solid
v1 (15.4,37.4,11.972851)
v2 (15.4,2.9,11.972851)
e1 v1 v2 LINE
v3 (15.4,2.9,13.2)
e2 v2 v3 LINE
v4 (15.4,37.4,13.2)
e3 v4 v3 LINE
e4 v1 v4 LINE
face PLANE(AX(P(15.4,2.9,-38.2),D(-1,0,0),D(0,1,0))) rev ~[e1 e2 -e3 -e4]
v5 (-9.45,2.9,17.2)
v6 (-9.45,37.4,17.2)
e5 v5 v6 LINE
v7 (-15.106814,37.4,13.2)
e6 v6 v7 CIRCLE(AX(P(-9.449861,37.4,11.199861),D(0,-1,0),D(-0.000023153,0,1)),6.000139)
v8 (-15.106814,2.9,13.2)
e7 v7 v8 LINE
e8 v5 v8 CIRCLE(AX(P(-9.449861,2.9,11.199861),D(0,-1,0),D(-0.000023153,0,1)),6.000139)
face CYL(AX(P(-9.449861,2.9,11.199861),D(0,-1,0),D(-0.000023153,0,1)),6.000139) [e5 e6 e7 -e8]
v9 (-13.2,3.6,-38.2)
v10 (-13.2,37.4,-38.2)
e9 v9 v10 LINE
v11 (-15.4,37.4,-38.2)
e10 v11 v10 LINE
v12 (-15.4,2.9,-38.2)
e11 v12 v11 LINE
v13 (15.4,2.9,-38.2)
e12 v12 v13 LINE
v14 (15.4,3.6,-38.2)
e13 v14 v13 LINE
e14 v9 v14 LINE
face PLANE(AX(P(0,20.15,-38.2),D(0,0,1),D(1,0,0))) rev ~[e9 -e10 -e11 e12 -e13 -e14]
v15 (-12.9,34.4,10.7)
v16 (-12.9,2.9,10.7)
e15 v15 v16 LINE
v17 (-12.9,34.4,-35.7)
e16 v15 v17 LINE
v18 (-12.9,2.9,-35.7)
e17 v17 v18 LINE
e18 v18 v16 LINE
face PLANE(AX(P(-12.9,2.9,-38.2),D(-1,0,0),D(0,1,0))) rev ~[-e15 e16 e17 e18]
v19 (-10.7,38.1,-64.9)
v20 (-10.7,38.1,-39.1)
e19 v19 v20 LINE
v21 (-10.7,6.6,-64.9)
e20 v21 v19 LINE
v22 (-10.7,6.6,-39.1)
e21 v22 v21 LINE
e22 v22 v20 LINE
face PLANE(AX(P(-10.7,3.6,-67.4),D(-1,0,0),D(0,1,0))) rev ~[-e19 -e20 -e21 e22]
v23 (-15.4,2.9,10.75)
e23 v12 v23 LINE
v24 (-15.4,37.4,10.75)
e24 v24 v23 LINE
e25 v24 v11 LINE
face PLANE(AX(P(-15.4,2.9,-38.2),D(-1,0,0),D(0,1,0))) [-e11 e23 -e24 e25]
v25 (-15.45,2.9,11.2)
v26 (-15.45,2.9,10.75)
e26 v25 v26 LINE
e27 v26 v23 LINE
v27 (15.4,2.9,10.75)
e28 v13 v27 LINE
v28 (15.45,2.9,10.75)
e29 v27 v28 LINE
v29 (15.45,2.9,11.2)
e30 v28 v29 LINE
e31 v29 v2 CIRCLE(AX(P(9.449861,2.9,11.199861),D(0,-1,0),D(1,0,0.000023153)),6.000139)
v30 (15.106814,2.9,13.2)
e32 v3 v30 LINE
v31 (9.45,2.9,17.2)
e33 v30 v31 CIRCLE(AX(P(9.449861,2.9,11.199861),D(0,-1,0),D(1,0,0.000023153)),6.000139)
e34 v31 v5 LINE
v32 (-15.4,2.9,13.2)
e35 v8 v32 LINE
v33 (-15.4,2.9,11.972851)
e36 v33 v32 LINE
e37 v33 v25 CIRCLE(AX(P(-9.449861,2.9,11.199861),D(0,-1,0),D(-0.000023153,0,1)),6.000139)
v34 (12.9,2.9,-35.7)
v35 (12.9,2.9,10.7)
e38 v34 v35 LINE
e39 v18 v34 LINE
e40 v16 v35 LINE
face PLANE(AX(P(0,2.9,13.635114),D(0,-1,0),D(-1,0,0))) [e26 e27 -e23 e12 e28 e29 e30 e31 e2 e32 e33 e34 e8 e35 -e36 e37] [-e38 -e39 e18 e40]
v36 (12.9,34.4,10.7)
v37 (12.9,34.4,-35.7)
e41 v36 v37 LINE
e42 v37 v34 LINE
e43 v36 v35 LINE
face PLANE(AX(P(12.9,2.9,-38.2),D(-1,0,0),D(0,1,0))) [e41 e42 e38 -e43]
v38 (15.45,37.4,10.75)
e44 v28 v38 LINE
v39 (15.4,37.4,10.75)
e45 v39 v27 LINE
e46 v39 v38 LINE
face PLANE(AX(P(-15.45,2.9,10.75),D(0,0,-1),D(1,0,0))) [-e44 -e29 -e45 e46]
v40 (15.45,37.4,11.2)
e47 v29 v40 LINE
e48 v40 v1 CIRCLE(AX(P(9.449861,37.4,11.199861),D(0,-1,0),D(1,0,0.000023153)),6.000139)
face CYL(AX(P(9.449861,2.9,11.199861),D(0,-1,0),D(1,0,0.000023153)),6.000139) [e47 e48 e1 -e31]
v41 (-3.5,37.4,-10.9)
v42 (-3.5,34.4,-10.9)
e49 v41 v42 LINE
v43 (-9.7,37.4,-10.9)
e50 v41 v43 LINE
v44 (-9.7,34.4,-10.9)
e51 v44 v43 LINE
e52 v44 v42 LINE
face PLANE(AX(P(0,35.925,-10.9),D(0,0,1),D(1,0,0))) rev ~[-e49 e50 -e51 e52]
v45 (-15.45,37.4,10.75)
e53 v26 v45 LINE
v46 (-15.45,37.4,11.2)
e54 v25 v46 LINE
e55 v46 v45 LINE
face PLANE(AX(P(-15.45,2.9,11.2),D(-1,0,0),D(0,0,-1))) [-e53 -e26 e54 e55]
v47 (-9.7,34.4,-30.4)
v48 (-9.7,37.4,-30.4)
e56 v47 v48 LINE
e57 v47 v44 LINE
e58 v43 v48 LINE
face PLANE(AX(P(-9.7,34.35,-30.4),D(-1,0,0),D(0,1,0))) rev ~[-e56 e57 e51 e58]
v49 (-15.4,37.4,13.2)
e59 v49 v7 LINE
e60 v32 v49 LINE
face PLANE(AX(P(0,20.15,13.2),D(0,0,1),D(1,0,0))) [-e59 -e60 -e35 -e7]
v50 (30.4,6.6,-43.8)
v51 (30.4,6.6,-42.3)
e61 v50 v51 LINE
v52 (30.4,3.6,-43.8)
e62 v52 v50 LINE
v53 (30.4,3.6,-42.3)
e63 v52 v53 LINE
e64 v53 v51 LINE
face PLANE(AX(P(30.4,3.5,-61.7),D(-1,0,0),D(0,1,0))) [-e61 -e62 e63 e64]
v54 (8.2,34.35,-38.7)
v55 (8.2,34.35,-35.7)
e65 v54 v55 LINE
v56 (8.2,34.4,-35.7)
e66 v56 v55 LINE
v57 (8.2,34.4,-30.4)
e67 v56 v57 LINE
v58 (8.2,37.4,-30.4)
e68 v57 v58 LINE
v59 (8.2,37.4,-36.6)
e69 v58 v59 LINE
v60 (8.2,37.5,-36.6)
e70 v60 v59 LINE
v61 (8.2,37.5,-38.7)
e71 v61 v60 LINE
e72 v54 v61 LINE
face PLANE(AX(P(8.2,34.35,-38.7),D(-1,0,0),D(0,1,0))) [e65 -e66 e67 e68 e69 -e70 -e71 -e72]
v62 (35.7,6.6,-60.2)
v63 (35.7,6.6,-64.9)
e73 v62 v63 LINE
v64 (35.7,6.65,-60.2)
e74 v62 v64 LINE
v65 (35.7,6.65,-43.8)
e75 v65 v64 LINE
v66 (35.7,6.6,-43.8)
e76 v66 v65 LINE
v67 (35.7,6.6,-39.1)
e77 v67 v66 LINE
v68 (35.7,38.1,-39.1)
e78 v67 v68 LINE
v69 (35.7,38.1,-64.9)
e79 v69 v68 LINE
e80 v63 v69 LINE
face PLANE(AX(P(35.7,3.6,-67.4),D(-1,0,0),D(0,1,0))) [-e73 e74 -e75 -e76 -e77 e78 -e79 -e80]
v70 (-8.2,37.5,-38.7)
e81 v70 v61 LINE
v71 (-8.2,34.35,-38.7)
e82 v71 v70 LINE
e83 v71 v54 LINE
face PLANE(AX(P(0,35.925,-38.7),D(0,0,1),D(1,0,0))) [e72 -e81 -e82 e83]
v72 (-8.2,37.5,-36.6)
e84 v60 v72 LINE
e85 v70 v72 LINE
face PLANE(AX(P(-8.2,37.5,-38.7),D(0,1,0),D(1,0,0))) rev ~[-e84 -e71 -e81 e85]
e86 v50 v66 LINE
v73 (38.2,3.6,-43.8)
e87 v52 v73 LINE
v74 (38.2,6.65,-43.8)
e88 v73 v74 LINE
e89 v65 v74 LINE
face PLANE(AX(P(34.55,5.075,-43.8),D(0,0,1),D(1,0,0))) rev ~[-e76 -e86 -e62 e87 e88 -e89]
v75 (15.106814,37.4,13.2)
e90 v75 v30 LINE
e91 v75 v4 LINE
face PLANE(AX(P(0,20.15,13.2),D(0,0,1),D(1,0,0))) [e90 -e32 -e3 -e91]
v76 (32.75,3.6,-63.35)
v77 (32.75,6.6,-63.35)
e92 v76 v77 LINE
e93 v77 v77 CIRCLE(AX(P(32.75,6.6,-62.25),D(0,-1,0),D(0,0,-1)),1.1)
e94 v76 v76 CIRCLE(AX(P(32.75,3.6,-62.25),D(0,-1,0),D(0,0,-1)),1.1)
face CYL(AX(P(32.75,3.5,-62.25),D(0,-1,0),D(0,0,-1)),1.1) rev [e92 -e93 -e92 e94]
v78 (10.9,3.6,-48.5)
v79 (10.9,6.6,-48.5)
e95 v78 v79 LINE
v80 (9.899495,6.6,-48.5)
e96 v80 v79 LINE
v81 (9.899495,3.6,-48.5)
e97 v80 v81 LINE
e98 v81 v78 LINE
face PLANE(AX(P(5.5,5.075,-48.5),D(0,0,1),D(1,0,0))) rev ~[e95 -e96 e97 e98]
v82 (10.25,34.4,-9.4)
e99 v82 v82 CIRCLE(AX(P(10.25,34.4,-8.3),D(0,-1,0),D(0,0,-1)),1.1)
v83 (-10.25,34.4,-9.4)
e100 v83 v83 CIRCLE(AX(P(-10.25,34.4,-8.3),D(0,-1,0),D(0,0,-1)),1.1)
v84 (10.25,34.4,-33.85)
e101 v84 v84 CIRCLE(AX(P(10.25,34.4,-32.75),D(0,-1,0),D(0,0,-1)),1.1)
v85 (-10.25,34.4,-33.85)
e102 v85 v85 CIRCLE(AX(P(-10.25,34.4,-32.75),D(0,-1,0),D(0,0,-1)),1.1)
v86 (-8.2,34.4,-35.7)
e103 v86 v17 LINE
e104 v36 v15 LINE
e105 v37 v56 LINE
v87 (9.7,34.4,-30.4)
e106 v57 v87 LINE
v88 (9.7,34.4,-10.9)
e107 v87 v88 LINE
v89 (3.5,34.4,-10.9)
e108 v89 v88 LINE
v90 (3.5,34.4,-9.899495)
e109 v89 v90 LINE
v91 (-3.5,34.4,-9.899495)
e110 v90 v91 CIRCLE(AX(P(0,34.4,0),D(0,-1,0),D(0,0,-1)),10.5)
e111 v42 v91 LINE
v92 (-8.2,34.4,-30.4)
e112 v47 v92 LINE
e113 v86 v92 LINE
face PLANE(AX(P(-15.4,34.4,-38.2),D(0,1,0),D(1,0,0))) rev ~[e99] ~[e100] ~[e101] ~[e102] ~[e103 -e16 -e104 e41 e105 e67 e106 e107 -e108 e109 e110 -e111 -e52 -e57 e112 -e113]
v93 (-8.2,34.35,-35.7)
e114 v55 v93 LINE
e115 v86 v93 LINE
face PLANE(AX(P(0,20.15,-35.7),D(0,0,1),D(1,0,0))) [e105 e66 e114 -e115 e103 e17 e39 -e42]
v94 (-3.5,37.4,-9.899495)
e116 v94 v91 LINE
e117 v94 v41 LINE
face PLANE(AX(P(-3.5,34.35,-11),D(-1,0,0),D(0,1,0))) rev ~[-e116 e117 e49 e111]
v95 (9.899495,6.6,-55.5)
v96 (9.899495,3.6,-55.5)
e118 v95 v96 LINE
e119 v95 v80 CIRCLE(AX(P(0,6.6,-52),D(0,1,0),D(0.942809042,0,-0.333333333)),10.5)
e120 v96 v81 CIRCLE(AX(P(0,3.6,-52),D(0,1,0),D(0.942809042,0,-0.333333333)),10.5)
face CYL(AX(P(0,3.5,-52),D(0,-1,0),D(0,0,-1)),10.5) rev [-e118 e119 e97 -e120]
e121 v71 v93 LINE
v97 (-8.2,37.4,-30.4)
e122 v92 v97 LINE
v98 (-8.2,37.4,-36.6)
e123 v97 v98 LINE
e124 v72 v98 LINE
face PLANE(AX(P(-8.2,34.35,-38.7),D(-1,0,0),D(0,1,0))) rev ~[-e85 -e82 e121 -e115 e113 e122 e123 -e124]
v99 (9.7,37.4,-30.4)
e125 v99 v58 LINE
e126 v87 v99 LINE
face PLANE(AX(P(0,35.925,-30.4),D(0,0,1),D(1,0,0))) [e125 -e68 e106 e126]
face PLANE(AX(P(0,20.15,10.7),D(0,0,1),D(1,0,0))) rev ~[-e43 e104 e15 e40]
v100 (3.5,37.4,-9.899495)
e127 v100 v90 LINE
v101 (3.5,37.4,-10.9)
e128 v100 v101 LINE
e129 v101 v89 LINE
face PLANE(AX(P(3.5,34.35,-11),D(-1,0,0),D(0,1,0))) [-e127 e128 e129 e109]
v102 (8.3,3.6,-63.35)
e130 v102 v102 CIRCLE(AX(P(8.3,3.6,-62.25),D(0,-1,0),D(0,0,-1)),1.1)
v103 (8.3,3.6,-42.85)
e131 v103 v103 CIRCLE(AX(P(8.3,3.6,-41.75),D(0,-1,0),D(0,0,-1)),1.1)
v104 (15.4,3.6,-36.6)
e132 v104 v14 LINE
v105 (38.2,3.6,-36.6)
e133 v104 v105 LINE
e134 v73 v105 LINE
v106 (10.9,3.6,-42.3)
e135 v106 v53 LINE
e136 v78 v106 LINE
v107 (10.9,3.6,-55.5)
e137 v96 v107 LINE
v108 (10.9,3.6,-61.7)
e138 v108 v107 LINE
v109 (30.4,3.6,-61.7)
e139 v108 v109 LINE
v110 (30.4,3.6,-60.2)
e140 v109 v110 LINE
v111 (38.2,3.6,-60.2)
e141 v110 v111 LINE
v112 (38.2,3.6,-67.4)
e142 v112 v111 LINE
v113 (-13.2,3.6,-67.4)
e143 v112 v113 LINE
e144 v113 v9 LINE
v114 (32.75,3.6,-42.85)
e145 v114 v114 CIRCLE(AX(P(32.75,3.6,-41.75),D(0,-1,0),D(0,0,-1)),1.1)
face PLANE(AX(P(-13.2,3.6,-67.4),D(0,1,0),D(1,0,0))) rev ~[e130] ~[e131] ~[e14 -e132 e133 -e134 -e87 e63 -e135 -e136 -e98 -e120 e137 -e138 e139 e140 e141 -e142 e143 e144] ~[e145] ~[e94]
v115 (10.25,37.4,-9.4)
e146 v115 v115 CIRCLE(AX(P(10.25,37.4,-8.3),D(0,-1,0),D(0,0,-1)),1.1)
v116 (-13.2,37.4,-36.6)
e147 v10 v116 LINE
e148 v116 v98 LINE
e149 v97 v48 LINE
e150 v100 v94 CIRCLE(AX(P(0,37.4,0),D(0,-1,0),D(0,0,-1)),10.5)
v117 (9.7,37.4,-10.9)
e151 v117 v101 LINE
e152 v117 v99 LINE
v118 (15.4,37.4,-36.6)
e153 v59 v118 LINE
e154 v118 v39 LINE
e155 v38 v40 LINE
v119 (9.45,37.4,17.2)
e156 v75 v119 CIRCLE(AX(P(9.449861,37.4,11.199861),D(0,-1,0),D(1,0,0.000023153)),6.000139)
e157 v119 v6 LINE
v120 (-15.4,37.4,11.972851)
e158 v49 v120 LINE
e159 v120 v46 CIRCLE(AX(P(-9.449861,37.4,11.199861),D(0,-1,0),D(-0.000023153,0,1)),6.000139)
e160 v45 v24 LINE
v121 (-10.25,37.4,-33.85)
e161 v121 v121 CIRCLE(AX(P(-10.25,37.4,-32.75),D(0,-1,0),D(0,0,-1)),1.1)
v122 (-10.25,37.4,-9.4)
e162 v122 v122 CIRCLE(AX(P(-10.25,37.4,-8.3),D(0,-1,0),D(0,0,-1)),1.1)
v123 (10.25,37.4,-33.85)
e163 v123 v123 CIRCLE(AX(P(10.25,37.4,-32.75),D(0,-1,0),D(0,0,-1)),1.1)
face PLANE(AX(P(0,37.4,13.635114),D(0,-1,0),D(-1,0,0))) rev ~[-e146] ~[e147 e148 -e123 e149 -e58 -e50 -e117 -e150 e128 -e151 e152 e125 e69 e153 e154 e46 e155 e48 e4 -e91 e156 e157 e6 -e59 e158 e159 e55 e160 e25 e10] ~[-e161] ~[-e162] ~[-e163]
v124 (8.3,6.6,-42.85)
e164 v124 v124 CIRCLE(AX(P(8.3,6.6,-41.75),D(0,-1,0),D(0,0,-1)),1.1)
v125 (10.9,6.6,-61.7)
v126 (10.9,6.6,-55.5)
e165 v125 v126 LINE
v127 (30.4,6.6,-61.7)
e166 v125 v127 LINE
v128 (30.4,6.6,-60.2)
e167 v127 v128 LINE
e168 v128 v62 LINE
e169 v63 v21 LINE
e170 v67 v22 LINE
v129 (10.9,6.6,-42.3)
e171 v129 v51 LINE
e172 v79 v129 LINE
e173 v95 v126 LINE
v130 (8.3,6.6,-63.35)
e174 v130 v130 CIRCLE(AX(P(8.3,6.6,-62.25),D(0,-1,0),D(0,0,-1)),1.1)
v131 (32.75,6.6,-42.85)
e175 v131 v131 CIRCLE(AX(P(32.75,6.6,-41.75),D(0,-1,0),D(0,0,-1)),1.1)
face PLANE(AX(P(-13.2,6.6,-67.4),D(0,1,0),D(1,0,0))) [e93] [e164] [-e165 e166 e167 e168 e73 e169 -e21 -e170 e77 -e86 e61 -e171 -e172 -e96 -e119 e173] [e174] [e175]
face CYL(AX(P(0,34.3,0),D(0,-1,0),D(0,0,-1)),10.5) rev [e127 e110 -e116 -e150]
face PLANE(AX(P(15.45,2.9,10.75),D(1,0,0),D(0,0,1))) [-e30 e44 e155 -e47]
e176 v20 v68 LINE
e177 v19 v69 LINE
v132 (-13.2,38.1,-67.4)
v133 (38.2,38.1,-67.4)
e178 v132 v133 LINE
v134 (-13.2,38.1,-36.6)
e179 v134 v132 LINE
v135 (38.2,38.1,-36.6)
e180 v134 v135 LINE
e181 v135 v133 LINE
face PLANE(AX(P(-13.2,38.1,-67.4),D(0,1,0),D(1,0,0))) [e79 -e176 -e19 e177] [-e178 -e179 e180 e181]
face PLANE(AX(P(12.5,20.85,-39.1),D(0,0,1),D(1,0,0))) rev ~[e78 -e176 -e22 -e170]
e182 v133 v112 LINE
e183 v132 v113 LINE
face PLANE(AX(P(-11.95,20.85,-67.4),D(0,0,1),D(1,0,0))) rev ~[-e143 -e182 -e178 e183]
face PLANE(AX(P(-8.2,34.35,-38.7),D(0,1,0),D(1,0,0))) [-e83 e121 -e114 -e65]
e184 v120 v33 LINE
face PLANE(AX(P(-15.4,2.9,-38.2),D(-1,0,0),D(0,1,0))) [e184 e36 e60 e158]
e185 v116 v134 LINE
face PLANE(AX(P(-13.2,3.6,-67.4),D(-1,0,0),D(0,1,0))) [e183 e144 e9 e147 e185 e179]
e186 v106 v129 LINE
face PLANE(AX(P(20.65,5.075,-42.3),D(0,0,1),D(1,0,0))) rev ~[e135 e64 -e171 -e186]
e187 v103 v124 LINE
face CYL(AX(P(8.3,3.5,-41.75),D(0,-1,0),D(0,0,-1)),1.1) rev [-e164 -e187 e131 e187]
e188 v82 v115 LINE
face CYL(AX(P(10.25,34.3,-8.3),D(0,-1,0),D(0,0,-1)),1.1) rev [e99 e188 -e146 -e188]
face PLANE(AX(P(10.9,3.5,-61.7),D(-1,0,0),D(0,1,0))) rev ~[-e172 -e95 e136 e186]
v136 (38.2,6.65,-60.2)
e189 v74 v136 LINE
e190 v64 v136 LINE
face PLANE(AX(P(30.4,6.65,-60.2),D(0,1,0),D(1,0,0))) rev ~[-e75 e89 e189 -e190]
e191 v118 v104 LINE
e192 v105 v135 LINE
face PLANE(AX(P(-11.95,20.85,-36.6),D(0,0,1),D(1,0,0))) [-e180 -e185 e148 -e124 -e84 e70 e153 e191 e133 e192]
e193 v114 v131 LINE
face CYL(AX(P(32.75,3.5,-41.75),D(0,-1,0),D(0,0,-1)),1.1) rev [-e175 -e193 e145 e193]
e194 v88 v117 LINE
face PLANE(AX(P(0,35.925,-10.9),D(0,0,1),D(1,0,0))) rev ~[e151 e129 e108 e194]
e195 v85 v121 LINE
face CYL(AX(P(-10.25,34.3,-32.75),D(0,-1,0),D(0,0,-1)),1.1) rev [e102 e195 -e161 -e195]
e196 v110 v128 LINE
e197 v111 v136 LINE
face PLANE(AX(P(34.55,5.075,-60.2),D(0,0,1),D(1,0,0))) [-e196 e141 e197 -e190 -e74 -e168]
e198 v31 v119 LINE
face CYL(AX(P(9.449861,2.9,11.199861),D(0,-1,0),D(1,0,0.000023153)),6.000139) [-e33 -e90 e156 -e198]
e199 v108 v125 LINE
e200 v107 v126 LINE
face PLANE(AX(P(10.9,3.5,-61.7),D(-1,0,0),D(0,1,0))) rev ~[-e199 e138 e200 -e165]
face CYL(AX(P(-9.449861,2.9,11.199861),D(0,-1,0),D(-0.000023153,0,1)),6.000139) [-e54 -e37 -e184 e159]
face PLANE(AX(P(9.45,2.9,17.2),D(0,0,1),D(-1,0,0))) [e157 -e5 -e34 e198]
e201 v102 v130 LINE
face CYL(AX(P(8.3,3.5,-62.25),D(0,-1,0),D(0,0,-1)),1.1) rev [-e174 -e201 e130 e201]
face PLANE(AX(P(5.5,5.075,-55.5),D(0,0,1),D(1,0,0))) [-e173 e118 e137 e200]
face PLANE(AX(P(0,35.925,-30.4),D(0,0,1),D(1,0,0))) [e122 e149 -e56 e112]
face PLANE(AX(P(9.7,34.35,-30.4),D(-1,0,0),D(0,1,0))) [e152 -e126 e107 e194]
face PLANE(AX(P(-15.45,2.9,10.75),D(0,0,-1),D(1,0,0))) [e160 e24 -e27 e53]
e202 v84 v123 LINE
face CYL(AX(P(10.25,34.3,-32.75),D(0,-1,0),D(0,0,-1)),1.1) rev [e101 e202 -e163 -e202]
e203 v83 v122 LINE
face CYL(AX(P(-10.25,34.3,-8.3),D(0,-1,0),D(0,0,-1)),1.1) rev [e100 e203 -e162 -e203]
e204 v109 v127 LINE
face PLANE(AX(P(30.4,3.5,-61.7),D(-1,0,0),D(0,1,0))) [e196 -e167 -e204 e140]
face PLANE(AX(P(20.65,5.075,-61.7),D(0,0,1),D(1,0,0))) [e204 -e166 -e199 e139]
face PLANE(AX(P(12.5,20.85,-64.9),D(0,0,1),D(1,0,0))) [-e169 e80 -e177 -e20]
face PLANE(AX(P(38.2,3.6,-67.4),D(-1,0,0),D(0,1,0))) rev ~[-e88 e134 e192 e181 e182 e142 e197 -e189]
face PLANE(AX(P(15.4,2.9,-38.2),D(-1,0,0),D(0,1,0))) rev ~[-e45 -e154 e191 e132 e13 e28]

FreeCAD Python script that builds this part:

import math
import FreeCAD as App
import Part
import Sketcher
from FreeCAD import Vector
Q = App.Units.Quantity

doc = App.newDocument("Part")
body = doc.addObject("PartDesign::Body", "Body")

# Sketch on XY plane
sketch1 = doc.addObject("Sketcher::SketchObject", "Sketch")
body.addObject(sketch1)
sketch1.AttachmentSupport = (doc.XY_Plane, [""])
sketch1.MapMode = "FlatFace"
sketch1.AttachmentOffset = App.Placement(Vector(0, 0, -38.2), App.Rotation())
sketch1.addGeometry([
    Part.LineSegment(Vector(-15.4, 37.4, 0), Vector(-15.4, 2.9, 0)),
    Part.LineSegment(Vector(-15.4, 2.9, 0), Vector(15.4, 2.9, 0)),
    Part.LineSegment(Vector(15.4, 2.9, 0), Vector(15.4, 37.4, 0)),
    Part.LineSegment(Vector(15.4, 37.4, 0), Vector(-15.4, 37.4, 0)),
], False)
sketch1.addConstraint([
    Sketcher.Constraint("Coincident", 0, 2, 1, 1),
    Sketcher.Constraint("Coincident", 1, 2, 2, 1),
    Sketcher.Constraint("Coincident", 2, 2, 3, 1),
    Sketcher.Constraint("Coincident", 3, 2, 0, 1),
    Sketcher.Constraint("Vertical", 0),
    Sketcher.Constraint("Horizontal", 1),
    Sketcher.Constraint("Vertical", 2),
    Sketcher.Constraint("Horizontal", 3),
    Sketcher.Constraint("DistanceX", 1, 1, 1, 2, Q("30.8 mm")),
    Sketcher.Constraint("DistanceY", 0, 2, 0, 1, Q("34.5 mm")),
    Sketcher.Constraint("DistanceX", 0, 2, -1, 1, Q("15.4 mm")),
    Sketcher.Constraint("DistanceY", -1, 1, 0, 2, Q("2.9 mm")),
])
pad1 = doc.addObject("PartDesign::Pad", "Pad")
body.addObject(pad1)
pad1.Profile = sketch1
pad1.Length = 2.5
body2 = doc.addObject("PartDesign::Body", "Body001")

# Sketch on XY plane
sketch2 = doc.addObject("Sketcher::SketchObject", "Sketch001")
body2.addObject(sketch2)
sketch2.AttachmentSupport = (doc.getObject("XY_Plane001"), [""])
sketch2.MapMode = "FlatFace"
sketch2.AttachmentOffset = App.Placement(Vector(0, 0, 10.7), App.Rotation())
sketch2.addGeometry([
    Part.LineSegment(Vector(-15.4, 37.4, 0), Vector(-15.4, 2.9, 0)),
    Part.LineSegment(Vector(-15.4, 2.9, 0), Vector(15.4, 2.9, 0)),
    Part.LineSegment(Vector(15.4, 2.9, 0), Vector(15.4, 37.4, 0)),
    Part.LineSegment(Vector(15.4, 37.4, 0), Vector(-15.4, 37.4, 0)),
], False)
sketch2.addConstraint([
    Sketcher.Constraint("Coincident", 0, 2, 1, 1),
    Sketcher.Constraint("Coincident", 1, 2, 2, 1),
    Sketcher.Constraint("Coincident", 2, 2, 3, 1),
    Sketcher.Constraint("Coincident", 3, 2, 0, 1),
    Sketcher.Constraint("Vertical", 0),
    Sketcher.Constraint("Horizontal", 1),
    Sketcher.Constraint("Vertical", 2),
    Sketcher.Constraint("Horizontal", 3),
    Sketcher.Constraint("DistanceX", 1, 1, 1, 2, Q("30.8 mm")),
    Sketcher.Constraint("DistanceY", 0, 2, 0, 1, Q("34.5 mm")),
    Sketcher.Constraint("DistanceX", 0, 2, -1, 1, Q("15.4 mm")),
    Sketcher.Constraint("DistanceY", -1, 1, 0, 2, Q("2.9 mm")),
])
pad2 = doc.addObject("PartDesign::Pad", "Pad001")
body2.addObject(pad2)
pad2.Profile = sketch2
pad2.Length = 2.5
body.AllowCompound = True
doc.recompute()

boolean = doc.addObject("PartDesign::Boolean", "Boolean")
body.addObject(boolean)
boolean.Type = "Fuse"
boolean.addObjects([body2])

# Sketch on XY plane
sketch3 = doc.addObject("Sketcher::SketchObject", "Sketch002")
body.addObject(sketch3)
sketch3.AttachmentSupport = (doc.XY_Plane, [""])
sketch3.MapMode = "FlatFace"
sketch3.AttachmentOffset = App.Placement(Vector(0, 0, -38.2), App.Rotation())
sketch3.addGeometry([
    Part.LineSegment(Vector(-15.4, 37.4, 0), Vector(-15.4, 2.9, 0)),
    Part.LineSegment(Vector(-15.4, 2.9, 0), Vector(-12.9, 2.9, 0)),
    Part.LineSegment(Vector(-12.9, 2.9, 0), Vector(-12.9, 37.4, 0)),
    Part.LineSegment(Vector(-12.9, 37.4, 0), Vector(-15.4, 37.4, 0)),
], False)
sketch3.addConstraint([
    Sketcher.Constraint("Coincident", 0, 2, 1, 1),
    Sketcher.Constraint("Coincident", 1, 2, 2, 1),
    Sketcher.Constraint("Coincident", 2, 2, 3, 1),
    Sketcher.Constraint("Coincident", 3, 2, 0, 1),
    Sketcher.Constraint("Vertical", 0),
    Sketcher.Constraint("Horizontal", 1),
    Sketcher.Constraint("Vertical", 2),
    Sketcher.Constraint("Horizontal", 3),
    Sketcher.Constraint("DistanceX", 1, 1, 1, 2, Q("2.5 mm")),
    Sketcher.Constraint("DistanceY", 0, 2, 0, 1, Q("34.5 mm")),
    Sketcher.Constraint("DistanceX", 0, 2, -1, 1, Q("15.4 mm")),
    Sketcher.Constraint("DistanceY", -1, 1, 0, 2, Q("2.9 mm")),
])
pad3 = doc.addObject("PartDesign::Pad", "Pad002")
body.addObject(pad3)
pad3.Profile = sketch3
pad3.Length = 51.4

# Sketch on XY plane
sketch4 = doc.addObject("Sketcher::SketchObject", "Sketch003")
body.addObject(sketch4)
sketch4.AttachmentSupport = (doc.XY_Plane, [""])
sketch4.MapMode = "FlatFace"
sketch4.AttachmentOffset = App.Placement(Vector(0, 0, -38.2), App.Rotation())
sketch4.addGeometry([
    Part.LineSegment(Vector(12.9, 37.4, 0), Vector(12.9, 2.9, 0)),
    Part.LineSegment(Vector(12.9, 2.9, 0), Vector(15.4, 2.9, 0)),
    Part.LineSegment(Vector(15.4, 2.9, 0), Vector(15.4, 37.4, 0)),
    Part.LineSegment(Vector(15.4, 37.4, 0), Vector(12.9, 37.4, 0)),
], False)
sketch4.addConstraint([
    Sketcher.Constraint("Coincident", 0, 2, 1, 1),
    Sketcher.Constraint("Coincident", 1, 2, 2, 1),
    Sketcher.Constraint("Coincident", 2, 2, 3, 1),
    Sketcher.Constraint("Coincident", 3, 2, 0, 1),
    Sketcher.Constraint("Vertical", 0),
    Sketcher.Constraint("Horizontal", 1),
    Sketcher.Constraint("Vertical", 2),
    Sketcher.Constraint("Horizontal", 3),
    Sketcher.Constraint("DistanceX", 1, 1, 1, 2, Q("2.5 mm")),
    Sketcher.Constraint("DistanceY", 0, 2, 0, 1, Q("34.5 mm")),
    Sketcher.Constraint("DistanceX", -1, 1, 0, 2, Q("12.9 mm")),
    Sketcher.Constraint("DistanceY", -1, 1, 0, 2, Q("2.9 mm")),
])
pad4 = doc.addObject("PartDesign::Pad", "Pad003")
body.addObject(pad4)
pad4.Profile = sketch4
pad4.Length = 51.4

# Sketch on XY plane
sketch5 = doc.addObject("Sketcher::SketchObject", "Sketch004")
body.addObject(sketch5)
sketch5.AttachmentSupport = (doc.XY_Plane, [""])
sketch5.MapMode = "FlatFace"
sketch5.AttachmentOffset = App.Placement(Vector(0, 0, -38.2), App.Rotation())
sketch5.addGeometry([
    Part.LineSegment(Vector(-15.4, 37.4, 0), Vector(-15.4, 34.4, 0)),
    Part.LineSegment(Vector(-15.4, 34.4, 0), Vector(15.4, 34.4, 0)),
    Part.LineSegment(Vector(15.4, 34.4, 0), Vector(15.4, 37.4, 0)),
    Part.LineSegment(Vector(15.4, 37.4, 0), Vector(-15.4, 37.4, 0)),
], False)
sketch5.addConstraint([
    Sketcher.Constraint("Coincident", 0, 2, 1, 1),
    Sketcher.Constraint("Coincident", 1, 2, 2, 1),
    Sketcher.Constraint("Coincident", 2, 2, 3, 1),
    Sketcher.Constraint("Coincident", 3, 2, 0, 1),
    Sketcher.Constraint("Vertical", 0),
    Sketcher.Constraint("Horizontal", 1),
    Sketcher.Constraint("Vertical", 2),
    Sketcher.Constraint("Horizontal", 3),
    Sketcher.Constraint("DistanceY", 0, 2, 0, 1, Q("3 mm")),
    Sketcher.Constraint("DistanceX", 1, 1, 1, 2, Q("30.8 mm")),
    Sketcher.Constraint("DistanceX", 0, 2, -1, 1, Q("15.4 mm")),
    Sketcher.Constraint("DistanceY", -1, 1, 0, 2, Q("34.4 mm")),
])
pad5 = doc.addObject("PartDesign::Pad", "Pad004")
body.addObject(pad5)
pad5.Profile = sketch5
pad5.Length = 51.4

# Sketch on XY plane
sketch6 = doc.addObject("Sketcher::SketchObject", "Sketch005")
body.addObject(sketch6)
sketch6.AttachmentSupport = (doc.XY_Plane, [""])
sketch6.MapMode = "FlatFace"
sketch6.AttachmentOffset = App.Placement(Vector(0, 0, -67.4), App.Rotation())
sketch6.addGeometry([
    Part.LineSegment(Vector(-13.2, 38.1, 0), Vector(-13.2, 3.6, 0)),
    Part.LineSegment(Vector(-13.2, 3.6, 0), Vector(-10.7, 3.6, 0)),
    Part.LineSegment(Vector(-10.7, 3.6, 0), Vector(-10.7, 38.1, 0)),
    Part.LineSegment(Vector(-10.7, 38.1, 0), Vector(-13.2, 38.1, 0)),
], False)
sketch6.addConstraint([
    Sketcher.Constraint("Coincident", 0, 2, 1, 1),
    Sketcher.Constraint("Coincident", 1, 2, 2, 1),
    Sketcher.Constraint("Coincident", 2, 2, 3, 1),
    Sketcher.Constraint("Coincident", 3, 2, 0, 1),
    Sketcher.Constraint("Vertical", 0),
    Sketcher.Constraint("Horizontal", 1),
    Sketcher.Constraint("Vertical", 2),
    Sketcher.Constraint("Horizontal", 3),
    Sketcher.Constraint("DistanceX", 1, 1, 1, 2, Q("2.5 mm")),
    Sketcher.Constraint("DistanceY", 0, 2, 0, 1, Q("34.5 mm")),
    Sketcher.Constraint("DistanceX", 0, 2, -1, 1, Q("13.2 mm")),
    Sketcher.Constraint("DistanceY", -1, 1, 0, 2, Q("3.6 mm")),
])
pad6 = doc.addObject("PartDesign::Pad", "Pad005")
body.addObject(pad6)
pad6.Profile = sketch6
pad6.Length = 30.8
body3 = doc.addObject("PartDesign::Body", "Body002")

# Sketch on XY plane
sketch7 = doc.addObject("Sketcher::SketchObject", "Sketch006")
body3.addObject(sketch7)
sketch7.AttachmentSupport = (doc.getObject("XY_Plane002"), [""])
sketch7.MapMode = "FlatFace"
sketch7.AttachmentOffset = App.Placement(Vector(0, 0, -67.4), App.Rotation())
sketch7.addGeometry([
    Part.LineSegment(Vector(35.7, 38.1, 0), Vector(35.7, 3.6, 0)),
    Part.LineSegment(Vector(35.7, 3.6, 0), Vector(38.2, 3.6, 0)),
    Part.LineSegment(Vector(38.2, 3.6, 0), Vector(38.2, 38.1, 0)),
    Part.LineSegment(Vector(38.2, 38.1, 0), Vector(35.7, 38.1, 0)),
], False)
sketch7.addConstraint([
    Sketcher.Constraint("Coincident", 0, 2, 1, 1),
    Sketcher.Constraint("Coincident", 1, 2, 2, 1),
    Sketcher.Constraint("Coincident", 2, 2, 3, 1),
    Sketcher.Constraint("Coincident", 3, 2, 0, 1),
    Sketcher.Constraint("Vertical", 0),
    Sketcher.Constraint("Horizontal", 1),
    Sketcher.Constraint("Vertical", 2),
    Sketcher.Constraint("Horizontal", 3),
    Sketcher.Constraint("DistanceX", 1, 1, 1, 2, Q("2.5 mm")),
    Sketcher.Constraint("DistanceY", 0, 2, 0, 1, Q("34.5 mm")),
    Sketcher.Constraint("DistanceX", -1, 1, 0, 2, Q("35.7 mm")),
    Sketcher.Constraint("DistanceY", -1, 1, 0, 2, Q("3.6 mm")),
])
pad7 = doc.addObject("PartDesign::Pad", "Pad006")
body3.addObject(pad7)
pad7.Profile = sketch7
pad7.Length = 30.8
body.AllowCompound = True
doc.recompute()

boolean2 = doc.addObject("PartDesign::Boolean", "Boolean001")
body.addObject(boolean2)
boolean2.Type = "Fuse"
boolean2.addObjects([body3])

# Sketch on XY plane
sketch8 = doc.addObject("Sketcher::SketchObject", "Sketch007")
body.addObject(sketch8)
sketch8.AttachmentSupport = (doc.XY_Plane, [""])
sketch8.MapMode = "FlatFace"
sketch8.AttachmentOffset = App.Placement(Vector(0, 0, -67.4), App.Rotation())
sketch8.addGeometry([
    Part.LineSegment(Vector(-13.2, 38.1, 0), Vector(-13.2, 3.6, 0)),
    Part.LineSegment(Vector(-13.2, 3.6, 0), Vector(38.2, 3.6, 0)),
    Part.LineSegment(Vector(38.2, 3.6, 0), Vector(38.2, 38.1, 0)),
    Part.LineSegment(Vector(38.2, 38.1, 0), Vector(-13.2, 38.1, 0)),
], False)
sketch8.addConstraint([
    Sketcher.Constraint("Coincident", 0, 2, 1, 1),
    Sketcher.Constraint("Coincident", 1, 2, 2, 1),
    Sketcher.Constraint("Coincident", 2, 2, 3, 1),
    Sketcher.Constraint("Coincident", 3, 2, 0, 1),
    Sketcher.Constraint("Vertical", 0),
    Sketcher.Constraint("Horizontal", 1),
    Sketcher.Constraint("Vertical", 2),
    Sketcher.Constraint("Horizontal", 3),
    Sketcher.Constraint("DistanceX", 1, 1, 1, 2, Q("51.4 mm")),
    Sketcher.Constraint("DistanceY", 0, 2, 0, 1, Q("34.5 mm")),
    Sketcher.Constraint("DistanceX", 0, 2, -1, 1, Q("13.2 mm")),
    Sketcher.Constraint("DistanceY", -1, 1, 0, 2, Q("3.6 mm")),
])
pad8 = doc.addObject("PartDesign::Pad", "Pad007")
body.addObject(pad8)
pad8.Profile = sketch8
pad8.Length = 2.5

# Sketch on XY plane
sketch9 = doc.addObject("Sketcher::SketchObject", "Sketch008")
body.addObject(sketch9)
sketch9.AttachmentSupport = (doc.XY_Plane, [""])
sketch9.MapMode = "FlatFace"
sketch9.AttachmentOffset = App.Placement(Vector(0, 0, -39.1), App.Rotation())
sketch9.addGeometry([
    Part.LineSegment(Vector(-13.2, 38.1, 0), Vector(-13.2, 3.6, 0)),
    Part.LineSegment(Vector(-13.2, 3.6, 0), Vector(38.2, 3.6, 0)),
    Part.LineSegment(Vector(38.2, 3.6, 0), Vector(38.2, 38.1, 0)),
    Part.LineSegment(Vector(38.2, 38.1, 0), Vector(-13.2, 38.1, 0)),
], False)
sketch9.addConstraint([
    Sketcher.Constraint("Coincident", 0, 2, 1, 1),
    Sketcher.Constraint("Coincident", 1, 2, 2, 1),
    Sketcher.Constraint("Coincident", 2, 2, 3, 1),
    Sketcher.Constraint("Coincident", 3, 2, 0, 1),
    Sketcher.Constraint("Vertical", 0),
    Sketcher.Constraint("Horizontal", 1),
    Sketcher.Constraint("Vertical", 2),
    Sketcher.Constraint("Horizontal", 3),
    Sketcher.Constraint("DistanceX", 1, 1, 1, 2, Q("51.4 mm")),
    Sketcher.Constraint("DistanceY", 0, 2, 0, 1, Q("34.5 mm")),
    Sketcher.Constraint("DistanceX", 0, 2, -1, 1, Q("13.2 mm")),
    Sketcher.Constraint("DistanceY", -1, 1, 0, 2, Q("3.6 mm")),
])
pad9 = doc.addObject("PartDesign::Pad", "Pad008")
body.addObject(pad9)
pad9.Profile = sketch9
pad9.Length = 2.5

# Sketch on XY plane
sketch10 = doc.addObject("Sketcher::SketchObject", "Sketch009")
body.addObject(sketch10)
sketch10.AttachmentSupport = (doc.XY_Plane, [""])
sketch10.MapMode = "FlatFace"
sketch10.AttachmentOffset = App.Placement(Vector(0, 0, -67.4), App.Rotation())
sketch10.addGeometry([
    Part.LineSegment(Vector(-13.2, 6.6, 0), Vector(-13.2, 3.6, 0)),
    Part.LineSegment(Vector(-13.2, 3.6, 0), Vector(38.2, 3.6, 0)),
    Part.LineSegment(Vector(38.2, 3.6, 0), Vector(38.2, 6.6, 0)),
    Part.LineSegment(Vector(38.2, 6.6, 0), Vector(-13.2, 6.6, 0)),
], False)
sketch10.addConstraint([
    Sketcher.Constraint("Coincident", 0, 2, 1, 1),
    Sketcher.Constraint("Coincident", 1, 2, 2, 1),
    Sketcher.Constraint("Coincident", 2, 2, 3, 1),
    Sketcher.Constraint("Coincident", 3, 2, 0, 1),
    Sketcher.Constraint("Vertical", 0),
    Sketcher.Constraint("Horizontal", 1),
    Sketcher.Constraint("Vertical", 2),
    Sketcher.Constraint("Horizontal", 3),
    Sketcher.Constraint("DistanceY", 0, 2, 0, 1, Q("3 mm")),
    Sketcher.Constraint("DistanceX", 1, 1, 1, 2, Q("51.4 mm")),
    Sketcher.Constraint("DistanceX", 0, 2, -1, 1, Q("13.2 mm")),
    Sketcher.Constraint("DistanceY", -1, 1, 0, 2, Q("3.6 mm")),
])
pad10 = doc.addObject("PartDesign::Pad", "Pad009")
body.addObject(pad10)
pad10.Profile = sketch10
pad10.Length = 30.8

# Sketch on XZ plane
sketch11 = doc.addObject("Sketcher::SketchObject", "Sketch010")
body.addObject(sketch11)
sketch11.AttachmentSupport = (doc.XZ_Plane, [""])
sketch11.MapMode = "FlatFace"
sketch11.AttachmentOffset = App.Placement(Vector(0, 0, -2.9), App.Rotation())
sketch11.addGeometry([
    Part.LineSegment(Vector(15.45, 10.75, 0), Vector(-15.45, 10.75, 0)),  # 0
    Part.LineSegment(Vector(-15.45, 10.75, 0), Vector(-15.45, 11.2, 0)),  # 1
    Part.ArcOfCircle(Part.Circle(Vector(-9.449861, 11.199861, 0), Vector(0, 0, 1), 6.000139), math.radians(90.001327), math.radians(179.998673)),  # 2
    Part.LineSegment(Vector(-9.45, 17.2, 0), Vector(9.45, 17.2, 0)),  # 3
    Part.ArcOfCircle(Part.Circle(Vector(9.449861, 11.199861, 0), Vector(0, 0, 1), 6.000139), math.radians(0.001327), math.radians(89.998673)),  # 4
    Part.LineSegment(Vector(15.45, 11.2, 0), Vector(15.45, 10.75, 0)),  # 5
], False)
sketch11.addConstraint([
    Sketcher.Constraint("Coincident", 0, 2, 1, 1),
    Sketcher.Constraint("Coincident", 1, 2, 2, 2),
    Sketcher.Constraint("Coincident", 2, 1, 3, 1),
    Sketcher.Constraint("Coincident", 3, 2, 4, 2),
    Sketcher.Constraint("Coincident", 4, 1, 5, 1),
    Sketcher.Constraint("Coincident", 5, 2, 0, 1),
    Sketcher.Constraint("Horizontal", 0),
    Sketcher.Constraint("Vertical", 1),
    Sketcher.Constraint("Horizontal", 3),
    Sketcher.Constraint("Vertical", 5),
    Sketcher.Constraint("Equal", 2, 4),
    Sketcher.Constraint("Symmetric", 1, 2, 4, 1, -2),
    Sketcher.Constraint("DistanceX", 0, 2, 0, 1, Q("30.9 mm")),
    Sketcher.Constraint("DistanceX", 3, 1, 3, 2, Q("18.9 mm")),
    Sketcher.Constraint("DistanceX", 1, 2, 2, 1, Q("6 mm")),
    Sketcher.Constraint("DistanceY", 1, 2, 2, 1, Q("6 mm")),
    Sketcher.Constraint("DistanceY", 1, 1, 1, 2, Q("0.45 mm")),
    Sketcher.Constraint("DistanceY", -1, 1, 1, 2, Q("11.2 mm")),
    Sketcher.Constraint("Radius", 2, Q("6.000139 mm")),
])
pad11 = doc.addObject("PartDesign::Pad", "Pad010")
body.addObject(pad11)
pad11.Profile = sketch11
pad11.Length = 34.5
pad11.Reversed = True

# Sketch on XZ plane
sketch12 = doc.addObject("Sketcher::SketchObject", "Sketch011")
body.addObject(sketch12)
sketch12.AttachmentSupport = (doc.XZ_Plane, [""])
sketch12.MapMode = "FlatFace"
sketch12.AttachmentOffset = App.Placement(Vector(0, 0, -34.3), App.Rotation())
sketch12.addGeometry(Part.Circle(Vector(0, 0, 0), Vector(0, 0, 1), 10.5), False)
sketch12.addConstraint([
    Sketcher.Constraint("Coincident", 0, 3, -1, 1),
    Sketcher.Constraint("Diameter", 0, Q("21 mm")),
])
pocket1 = doc.addObject("PartDesign::Pocket", "Pocket")
body.addObject(pocket1)
pocket1.Profile = sketch12
pocket1.Length = 3.2

# Sketch on XY plane
sketch13 = doc.addObject("Sketcher::SketchObject", "Sketch012")
body.addObject(sketch13)
sketch13.AttachmentSupport = (doc.XY_Plane, [""])
sketch13.MapMode = "FlatFace"
sketch13.AttachmentOffset = App.Placement(Vector(0, 0, -30.4), App.Rotation())
sketch13.addGeometry([
    Part.LineSegment(Vector(-9.7, 37.5, 0), Vector(-9.7, 34.35, 0)),
    Part.LineSegment(Vector(-9.7, 34.35, 0), Vector(9.7, 34.35, 0)),
    Part.LineSegment(Vector(9.7, 34.35, 0), Vector(9.7, 37.5, 0)),
    Part.LineSegment(Vector(9.7, 37.5, 0), Vector(-9.7, 37.5, 0)),
], False)
sketch13.addConstraint([
    Sketcher.Constraint("Coincident", 0, 2, 1, 1),
    Sketcher.Constraint("Coincident", 1, 2, 2, 1),
    Sketcher.Constraint("Coincident", 2, 2, 3, 1),
    Sketcher.Constraint("Coincident", 3, 2, 0, 1),
    Sketcher.Constraint("Vertical", 0),
    Sketcher.Constraint("Horizontal", 1),
    Sketcher.Constraint("Vertical", 2),
    Sketcher.Constraint("Horizontal", 3),
    Sketcher.Constraint("DistanceX", 1, 1, 1, 2, Q("19.4 mm")),
    Sketcher.Constraint("DistanceY", 0, 2, 0, 1, Q("3.15 mm")),
    Sketcher.Constraint("DistanceX", 0, 2, -1, 1, Q("9.7 mm")),
    Sketcher.Constraint("DistanceY", -1, 1, 2, 2, Q("37.5 mm")),
])
pocket2 = doc.addObject("PartDesign::Pocket", "Pocket001")
body.addObject(pocket2)
pocket2.Profile = sketch13
pocket2.Length = 19.5
pocket2.Reversed = True

# Sketch on XY plane
sketch14 = doc.addObject("Sketcher::SketchObject", "Sketch013")
body.addObject(sketch14)
sketch14.AttachmentSupport = (doc.XY_Plane, [""])
sketch14.MapMode = "FlatFace"
sketch14.AttachmentOffset = App.Placement(Vector(0, 0, -38.7), App.Rotation())
sketch14.addGeometry([
    Part.LineSegment(Vector(-8.2, 37.5, 0), Vector(-8.2, 34.35, 0)),
    Part.LineSegment(Vector(-8.2, 34.35, 0), Vector(8.2, 34.35, 0)),
    Part.LineSegment(Vector(8.2, 34.35, 0), Vector(8.2, 37.5, 0)),
    Part.LineSegment(Vector(8.2, 37.5, 0), Vector(-8.2, 37.5, 0)),
], False)
sketch14.addConstraint([
    Sketcher.Constraint("Coincident", 0, 2, 1, 1),
    Sketcher.Constraint("Coincident", 1, 2, 2, 1),
    Sketcher.Constraint("Coincident", 2, 2, 3, 1),
    Sketcher.Constraint("Coincident", 3, 2, 0, 1),
    Sketcher.Constraint("Vertical", 0),
    Sketcher.Constraint("Horizontal", 1),
    Sketcher.Constraint("Vertical", 2),
    Sketcher.Constraint("Horizontal", 3),
    Sketcher.Constraint("DistanceX", 1, 1, 1, 2, Q("16.4 mm")),
    Sketcher.Constraint("DistanceY", 0, 2, 0, 1, Q("3.15 mm")),
    Sketcher.Constraint("DistanceX", 0, 2, -1, 1, Q("8.2 mm")),
    Sketcher.Constraint("DistanceY", -1, 1, 2, 2, Q("37.5 mm")),
])
pocket3 = doc.addObject("PartDesign::Pocket", "Pocket002")
body.addObject(pocket3)
pocket3.Profile = sketch14
pocket3.Length = 8.3
pocket3.Reversed = True

# Sketch on XY plane
sketch15 = doc.addObject("Sketcher::SketchObject", "Sketch014")
body.addObject(sketch15)
sketch15.AttachmentSupport = (doc.XY_Plane, [""])
sketch15.MapMode = "FlatFace"
sketch15.AttachmentOffset = App.Placement(Vector(0, 0, -11), App.Rotation())
sketch15.addGeometry([
    Part.LineSegment(Vector(-3.5, 37.5, 0), Vector(-3.5, 34.35, 0)),
    Part.LineSegment(Vector(-3.5, 34.35, 0), Vector(3.5, 34.35, 0)),
    Part.LineSegment(Vector(3.5, 34.35, 0), Vector(3.5, 37.5, 0)),
    Part.LineSegment(Vector(3.5, 37.5, 0), Vector(-3.5, 37.5, 0)),
], False)
sketch15.addConstraint([
    Sketcher.Constraint("Coincident", 0, 2, 1, 1),
    Sketcher.Constraint("Coincident", 1, 2, 2, 1),
    Sketcher.Constraint("Coincident", 2, 2, 3, 1),
    Sketcher.Constraint("Coincident", 3, 2, 0, 1),
    Sketcher.Constraint("Vertical", 0),
    Sketcher.Constraint("Horizontal", 1),
    Sketcher.Constraint("Vertical", 2),
    Sketcher.Constraint("Horizontal", 3),
    Sketcher.Constraint("DistanceX", 1, 1, 1, 2, Q("7 mm")),
    Sketcher.Constraint("DistanceY", 0, 2, 0, 1, Q("3.15 mm")),
    Sketcher.Constraint("DistanceX", 0, 2, -1, 1, Q("3.5 mm")),
    Sketcher.Constraint("DistanceY", -1, 1, 2, 2, Q("37.5 mm")),
])
pocket4 = doc.addObject("PartDesign::Pocket", "Pocket003")
body.addObject(pocket4)
pocket4.Profile = sketch15
pocket4.Length = 11
pocket4.Reversed = True

# Sketch on XZ plane
sketch16 = doc.addObject("Sketcher::SketchObject", "Sketch015")
body.addObject(sketch16)
sketch16.AttachmentSupport = (doc.XZ_Plane, [""])
sketch16.MapMode = "FlatFace"
sketch16.AttachmentOffset = App.Placement(Vector(0, 0, -34.3), App.Rotation())
sketch16.addGeometry(Part.Circle(Vector(-10.25, -8.3, 0), Vector(0, 0, 1), 1.1), False)
sketch16.addConstraint([
    Sketcher.Constraint("Diameter", 0, Q("2.2 mm")),
    Sketcher.Constraint("DistanceY", 0, 3, -1, 1, Q("8.3 mm")),
    Sketcher.Constraint("DistanceX", 0, 3, -1, 1, Q("10.25 mm")),
])
pocket5 = doc.addObject("PartDesign::Pocket", "Pocket004")
body.addObject(pocket5)
pocket5.Profile = sketch16
pocket5.Length = 3.2

# Sketch on XZ plane
sketch17 = doc.addObject("Sketcher::SketchObject", "Sketch016")
body.addObject(sketch17)
sketch17.AttachmentSupport = (doc.XZ_Plane, [""])
sketch17.MapMode = "FlatFace"
sketch17.AttachmentOffset = App.Placement(Vector(0, 0, -34.3), App.Rotation())
sketch17.addGeometry(Part.Circle(Vector(10.25, -8.3, 0), Vector(0, 0, 1), 1.1), False)
sketch17.addConstraint([
    Sketcher.Constraint("Diameter", 0, Q("2.2 mm")),
    Sketcher.Constraint("DistanceY", 0, 3, -1, 1, Q("8.3 mm")),
    Sketcher.Constraint("DistanceX", -1, 1, 0, 3, Q("10.25 mm")),
])
pocket6 = doc.addObject("PartDesign::Pocket", "Pocket005")
body.addObject(pocket6)
pocket6.Profile = sketch17
pocket6.Length = 3.2

# Sketch on XZ plane
sketch18 = doc.addObject("Sketcher::SketchObject", "Sketch017")
body.addObject(sketch18)
sketch18.AttachmentSupport = (doc.XZ_Plane, [""])
sketch18.MapMode = "FlatFace"
sketch18.AttachmentOffset = App.Placement(Vector(0, 0, -34.3), App.Rotation())
sketch18.addGeometry(Part.Circle(Vector(-10.25, -32.75, 0), Vector(0, 0, 1), 1.1), False)
sketch18.addConstraint([
    Sketcher.Constraint("Diameter", 0, Q("2.2 mm")),
    Sketcher.Constraint("DistanceX", 0, 3, -1, 1, Q("10.25 mm")),
    Sketcher.Constraint("DistanceY", 0, 3, -1, 1, Q("32.75 mm")),
])
pocket7 = doc.addObject("PartDesign::Pocket", "Pocket006")
body.addObject(pocket7)
pocket7.Profile = sketch18
pocket7.Length = 3.2

# Sketch on XZ plane
sketch19 = doc.addObject("Sketcher::SketchObject", "Sketch018")
body.addObject(sketch19)
sketch19.AttachmentSupport = (doc.XZ_Plane, [""])
sketch19.MapMode = "FlatFace"
sketch19.AttachmentOffset = App.Placement(Vector(0, 0, -34.3), App.Rotation())
sketch19.addGeometry(Part.Circle(Vector(10.25, -32.75, 0), Vector(0, 0, 1), 1.1), False)
sketch19.addConstraint([
    Sketcher.Constraint("Diameter", 0, Q("2.2 mm")),
    Sketcher.Constraint("DistanceX", -1, 1, 0, 3, Q("10.25 mm")),
    Sketcher.Constraint("DistanceY", 0, 3, -1, 1, Q("32.75 mm")),
])
pocket8 = doc.addObject("PartDesign::Pocket", "Pocket007")
body.addObject(pocket8)
pocket8.Profile = sketch19
pocket8.Length = 3.2

# Sketch on XZ plane
sketch20 = doc.addObject("Sketcher::SketchObject", "Sketch019")
body.addObject(sketch20)
sketch20.AttachmentSupport = (doc.XZ_Plane, [""])
sketch20.MapMode = "FlatFace"
sketch20.AttachmentOffset = App.Placement(Vector(0, 0, -3.5), App.Rotation())
sketch20.addGeometry(Part.Circle(Vector(0, -52, 0), Vector(0, 0, 1), 10.5), False)
sketch20.addConstraint([
    Sketcher.Constraint("PointOnObject", 0, 3, -2),
    Sketcher.Constraint("Diameter", 0, Q("21 mm")),
    Sketcher.Constraint("DistanceY", 0, 3, -1, 1, Q("52 mm")),
])
pocket9 = doc.addObject("PartDesign::Pocket", "Pocket008")
body.addObject(pocket9)
pocket9.Profile = sketch20
pocket9.Length = 3.2

# Sketch on XY plane
sketch21 = doc.addObject("Sketcher::SketchObject", "Sketch020")
body.addObject(sketch21)
sketch21.AttachmentSupport = (doc.XY_Plane, [""])
sketch21.MapMode = "FlatFace"
sketch21.AttachmentOffset = App.Placement(Vector(0, 0, -61.7), App.Rotation())
sketch21.addGeometry([
    Part.LineSegment(Vector(10.9, 6.65, 0), Vector(10.9, 3.5, 0)),
    Part.LineSegment(Vector(10.9, 3.5, 0), Vector(30.4, 3.5, 0)),
    Part.LineSegment(Vector(30.4, 3.5, 0), Vector(30.4, 6.65, 0)),
    Part.LineSegment(Vector(30.4, 6.65, 0), Vector(10.9, 6.65, 0)),
], False)
sketch21.addConstraint([
    Sketcher.Constraint("Coincident", 0, 2, 1, 1),
    Sketcher.Constraint("Coincident", 1, 2, 2, 1),
    Sketcher.Constraint("Coincident", 2, 2, 3, 1),
    Sketcher.Constraint("Coincident", 3, 2, 0, 1),
    Sketcher.Constraint("Vertical", 0),
    Sketcher.Constraint("Horizontal", 1),
    Sketcher.Constraint("Vertical", 2),
    Sketcher.Constraint("Horizontal", 3),
    Sketcher.Constraint("DistanceX", 1, 1, 1, 2, Q("19.5 mm")),
    Sketcher.Constraint("DistanceY", 0, 2, 0, 1, Q("3.15 mm")),
    Sketcher.Constraint("DistanceX", -1, 1, 0, 2, Q("10.9 mm")),
    Sketcher.Constraint("DistanceY", -1, 1, 0, 2, Q("3.5 mm")),
])
pocket10 = doc.addObject("PartDesign::Pocket", "Pocket009")
body.addObject(pocket10)
pocket10.Profile = sketch21
pocket10.Length = 19.4
pocket10.Reversed = True

# Sketch on XY plane
sketch22 = doc.addObject("Sketcher::SketchObject", "Sketch021")
body.addObject(sketch22)
sketch22.AttachmentSupport = (doc.XY_Plane, [""])
sketch22.MapMode = "FlatFace"
sketch22.AttachmentOffset = App.Placement(Vector(0, 0, -60.2), App.Rotation())
sketch22.addGeometry([
    Part.LineSegment(Vector(30.4, 6.65, 0), Vector(30.4, 3.5, 0)),
    Part.LineSegment(Vector(30.4, 3.5, 0), Vector(38.7, 3.5, 0)),
    Part.LineSegment(Vector(38.7, 3.5, 0), Vector(38.7, 6.65, 0)),
    Part.LineSegment(Vector(38.7, 6.65, 0), Vector(30.4, 6.65, 0)),
], False)
sketch22.addConstraint([
    Sketcher.Constraint("Coincident", 0, 2, 1, 1),
    Sketcher.Constraint("Coincident", 1, 2, 2, 1),
    Sketcher.Constraint("Coincident", 2, 2, 3, 1),
    Sketcher.Constraint("Coincident", 3, 2, 0, 1),
    Sketcher.Constraint("Vertical", 0),
    Sketcher.Constraint("Horizontal", 1),
    Sketcher.Constraint("Vertical", 2),
    Sketcher.Constraint("Horizontal", 3),
    Sketcher.Constraint("DistanceX", 1, 1, 1, 2, Q("8.3 mm")),
    Sketcher.Constraint("DistanceY", 0, 2, 0, 1, Q("3.15 mm")),
    Sketcher.Constraint("DistanceX", -1, 1, 0, 2, Q("30.4 mm")),
    Sketcher.Constraint("DistanceY", -1, 1, 0, 2, Q("3.5 mm")),
])
pocket11 = doc.addObject("PartDesign::Pocket", "Pocket010")
body.addObject(pocket11)
pocket11.Profile = sketch22
pocket11.Length = 16.4
pocket11.Reversed = True

# Sketch on XY plane
sketch23 = doc.addObject("Sketcher::SketchObject", "Sketch022")
body.addObject(sketch23)
sketch23.AttachmentSupport = (doc.XY_Plane, [""])
sketch23.MapMode = "FlatFace"
sketch23.AttachmentOffset = App.Placement(Vector(0, 0, -55.5), App.Rotation())
sketch23.addGeometry([
    Part.LineSegment(Vector(0, 6.65, 0), Vector(0, 3.5, 0)),
    Part.LineSegment(Vector(0, 3.5, 0), Vector(11, 3.5, 0)),
    Part.LineSegment(Vector(11, 3.5, 0), Vector(11, 6.65, 0)),
    Part.LineSegment(Vector(11, 6.65, 0), Vector(0, 6.65, 0)),
], False)
sketch23.addConstraint([
    Sketcher.Constraint("Coincident", 0, 2, 1, 1),
    Sketcher.Constraint("Coincident", 1, 2, 2, 1),
    Sketcher.Constraint("Coincident", 2, 2, 3, 1),
    Sketcher.Constraint("Coincident", 3, 2, 0, 1),
    Sketcher.Constraint("Vertical", 0),
    Sketcher.Constraint("Horizontal", 1),
    Sketcher.Constraint("Vertical", 2),
    Sketcher.Constraint("Horizontal", 3),
    Sketcher.Constraint("PointOnObject", 0, 2, -2),
    Sketcher.Constraint("DistanceX", 1, 1, 1, 2, Q("11 mm")),
    Sketcher.Constraint("DistanceY", 0, 2, 0, 1, Q("3.15 mm")),
    Sketcher.Constraint("DistanceY", -1, 1, 0, 2, Q("3.5 mm")),
])
pocket12 = doc.addObject("PartDesign::Pocket", "Pocket011")
body.addObject(pocket12)
pocket12.Profile = sketch23
pocket12.Length = 7
pocket12.Reversed = True

# Sketch on XZ plane
sketch24 = doc.addObject("Sketcher::SketchObject", "Sketch023")
body.addObject(sketch24)
sketch24.AttachmentSupport = (doc.XZ_Plane, [""])
sketch24.MapMode = "FlatFace"
sketch24.AttachmentOffset = App.Placement(Vector(0, 0, -3.5), App.Rotation())
sketch24.addGeometry(Part.Circle(Vector(8.3, -62.25, 0), Vector(0, 0, 1), 1.1), False)
sketch24.addConstraint([
    Sketcher.Constraint("Diameter", 0, Q("2.2 mm")),
    Sketcher.Constraint("DistanceX", -1, 1, 0, 3, Q("8.3 mm")),
    Sketcher.Constraint("DistanceY", 0, 3, -1, 1, Q("62.25 mm")),
])
pocket13 = doc.addObject("PartDesign::Pocket", "Pocket012")
body.addObject(pocket13)
pocket13.Profile = sketch24
pocket13.Length = 3.2

# Sketch on XZ plane
sketch25 = doc.addObject("Sketcher::SketchObject", "Sketch024")
body.addObject(sketch25)
sketch25.AttachmentSupport = (doc.XZ_Plane, [""])
sketch25.MapMode = "FlatFace"
sketch25.AttachmentOffset = App.Placement(Vector(0, 0, -3.5), App.Rotation())
sketch25.addGeometry(Part.Circle(Vector(8.3, -41.75, 0), Vector(0, 0, 1), 1.1), False)
sketch25.addConstraint([
    Sketcher.Constraint("Diameter", 0, Q("2.2 mm")),
    Sketcher.Constraint("DistanceX", -1, 1, 0, 3, Q("8.3 mm")),
    Sketcher.Constraint("DistanceY", 0, 3, -1, 1, Q("41.75 mm")),
])
pocket14 = doc.addObject("PartDesign::Pocket", "Pocket013")
body.addObject(pocket14)
pocket14.Profile = sketch25
pocket14.Length = 3.2

# Sketch on XZ plane
sketch26 = doc.addObject("Sketcher::SketchObject", "Sketch025")
body.addObject(sketch26)
sketch26.AttachmentSupport = (doc.XZ_Plane, [""])
sketch26.MapMode = "FlatFace"
sketch26.AttachmentOffset = App.Placement(Vector(0, 0, -3.5), App.Rotation())
sketch26.addGeometry(Part.Circle(Vector(32.75, -62.25, 0), Vector(0, 0, 1), 1.1), False)
sketch26.addConstraint([
    Sketcher.Constraint("Diameter", 0, Q("2.2 mm")),
    Sketcher.Constraint("DistanceX", -1, 1, 0, 3, Q("32.75 mm")),
    Sketcher.Constraint("DistanceY", 0, 3, -1, 1, Q("62.25 mm")),
])
pocket15 = doc.addObject("PartDesign::Pocket", "Pocket014")
body.addObject(pocket15)
pocket15.Profile = sketch26
pocket15.Length = 3.2

# Sketch on XZ plane
sketch27 = doc.addObject("Sketcher::SketchObject", "Sketch026")
body.addObject(sketch27)
sketch27.AttachmentSupport = (doc.XZ_Plane, [""])
sketch27.MapMode = "FlatFace"
sketch27.AttachmentOffset = App.Placement(Vector(0, 0, -3.5), App.Rotation())
sketch27.addGeometry(Part.Circle(Vector(32.75, -41.75, 0), Vector(0, 0, 1), 1.1), False)
sketch27.addConstraint([
    Sketcher.Constraint("Diameter", 0, Q("2.2 mm")),
    Sketcher.Constraint("DistanceX", -1, 1, 0, 3, Q("32.75 mm")),
    Sketcher.Constraint("DistanceY", 0, 3, -1, 1, Q("41.75 mm")),
])
pocket16 = doc.addObject("PartDesign::Pocket", "Pocket015")
body.addObject(pocket16)
pocket16.Profile = sketch27
pocket16.Length = 3.2

doc.recompute()
